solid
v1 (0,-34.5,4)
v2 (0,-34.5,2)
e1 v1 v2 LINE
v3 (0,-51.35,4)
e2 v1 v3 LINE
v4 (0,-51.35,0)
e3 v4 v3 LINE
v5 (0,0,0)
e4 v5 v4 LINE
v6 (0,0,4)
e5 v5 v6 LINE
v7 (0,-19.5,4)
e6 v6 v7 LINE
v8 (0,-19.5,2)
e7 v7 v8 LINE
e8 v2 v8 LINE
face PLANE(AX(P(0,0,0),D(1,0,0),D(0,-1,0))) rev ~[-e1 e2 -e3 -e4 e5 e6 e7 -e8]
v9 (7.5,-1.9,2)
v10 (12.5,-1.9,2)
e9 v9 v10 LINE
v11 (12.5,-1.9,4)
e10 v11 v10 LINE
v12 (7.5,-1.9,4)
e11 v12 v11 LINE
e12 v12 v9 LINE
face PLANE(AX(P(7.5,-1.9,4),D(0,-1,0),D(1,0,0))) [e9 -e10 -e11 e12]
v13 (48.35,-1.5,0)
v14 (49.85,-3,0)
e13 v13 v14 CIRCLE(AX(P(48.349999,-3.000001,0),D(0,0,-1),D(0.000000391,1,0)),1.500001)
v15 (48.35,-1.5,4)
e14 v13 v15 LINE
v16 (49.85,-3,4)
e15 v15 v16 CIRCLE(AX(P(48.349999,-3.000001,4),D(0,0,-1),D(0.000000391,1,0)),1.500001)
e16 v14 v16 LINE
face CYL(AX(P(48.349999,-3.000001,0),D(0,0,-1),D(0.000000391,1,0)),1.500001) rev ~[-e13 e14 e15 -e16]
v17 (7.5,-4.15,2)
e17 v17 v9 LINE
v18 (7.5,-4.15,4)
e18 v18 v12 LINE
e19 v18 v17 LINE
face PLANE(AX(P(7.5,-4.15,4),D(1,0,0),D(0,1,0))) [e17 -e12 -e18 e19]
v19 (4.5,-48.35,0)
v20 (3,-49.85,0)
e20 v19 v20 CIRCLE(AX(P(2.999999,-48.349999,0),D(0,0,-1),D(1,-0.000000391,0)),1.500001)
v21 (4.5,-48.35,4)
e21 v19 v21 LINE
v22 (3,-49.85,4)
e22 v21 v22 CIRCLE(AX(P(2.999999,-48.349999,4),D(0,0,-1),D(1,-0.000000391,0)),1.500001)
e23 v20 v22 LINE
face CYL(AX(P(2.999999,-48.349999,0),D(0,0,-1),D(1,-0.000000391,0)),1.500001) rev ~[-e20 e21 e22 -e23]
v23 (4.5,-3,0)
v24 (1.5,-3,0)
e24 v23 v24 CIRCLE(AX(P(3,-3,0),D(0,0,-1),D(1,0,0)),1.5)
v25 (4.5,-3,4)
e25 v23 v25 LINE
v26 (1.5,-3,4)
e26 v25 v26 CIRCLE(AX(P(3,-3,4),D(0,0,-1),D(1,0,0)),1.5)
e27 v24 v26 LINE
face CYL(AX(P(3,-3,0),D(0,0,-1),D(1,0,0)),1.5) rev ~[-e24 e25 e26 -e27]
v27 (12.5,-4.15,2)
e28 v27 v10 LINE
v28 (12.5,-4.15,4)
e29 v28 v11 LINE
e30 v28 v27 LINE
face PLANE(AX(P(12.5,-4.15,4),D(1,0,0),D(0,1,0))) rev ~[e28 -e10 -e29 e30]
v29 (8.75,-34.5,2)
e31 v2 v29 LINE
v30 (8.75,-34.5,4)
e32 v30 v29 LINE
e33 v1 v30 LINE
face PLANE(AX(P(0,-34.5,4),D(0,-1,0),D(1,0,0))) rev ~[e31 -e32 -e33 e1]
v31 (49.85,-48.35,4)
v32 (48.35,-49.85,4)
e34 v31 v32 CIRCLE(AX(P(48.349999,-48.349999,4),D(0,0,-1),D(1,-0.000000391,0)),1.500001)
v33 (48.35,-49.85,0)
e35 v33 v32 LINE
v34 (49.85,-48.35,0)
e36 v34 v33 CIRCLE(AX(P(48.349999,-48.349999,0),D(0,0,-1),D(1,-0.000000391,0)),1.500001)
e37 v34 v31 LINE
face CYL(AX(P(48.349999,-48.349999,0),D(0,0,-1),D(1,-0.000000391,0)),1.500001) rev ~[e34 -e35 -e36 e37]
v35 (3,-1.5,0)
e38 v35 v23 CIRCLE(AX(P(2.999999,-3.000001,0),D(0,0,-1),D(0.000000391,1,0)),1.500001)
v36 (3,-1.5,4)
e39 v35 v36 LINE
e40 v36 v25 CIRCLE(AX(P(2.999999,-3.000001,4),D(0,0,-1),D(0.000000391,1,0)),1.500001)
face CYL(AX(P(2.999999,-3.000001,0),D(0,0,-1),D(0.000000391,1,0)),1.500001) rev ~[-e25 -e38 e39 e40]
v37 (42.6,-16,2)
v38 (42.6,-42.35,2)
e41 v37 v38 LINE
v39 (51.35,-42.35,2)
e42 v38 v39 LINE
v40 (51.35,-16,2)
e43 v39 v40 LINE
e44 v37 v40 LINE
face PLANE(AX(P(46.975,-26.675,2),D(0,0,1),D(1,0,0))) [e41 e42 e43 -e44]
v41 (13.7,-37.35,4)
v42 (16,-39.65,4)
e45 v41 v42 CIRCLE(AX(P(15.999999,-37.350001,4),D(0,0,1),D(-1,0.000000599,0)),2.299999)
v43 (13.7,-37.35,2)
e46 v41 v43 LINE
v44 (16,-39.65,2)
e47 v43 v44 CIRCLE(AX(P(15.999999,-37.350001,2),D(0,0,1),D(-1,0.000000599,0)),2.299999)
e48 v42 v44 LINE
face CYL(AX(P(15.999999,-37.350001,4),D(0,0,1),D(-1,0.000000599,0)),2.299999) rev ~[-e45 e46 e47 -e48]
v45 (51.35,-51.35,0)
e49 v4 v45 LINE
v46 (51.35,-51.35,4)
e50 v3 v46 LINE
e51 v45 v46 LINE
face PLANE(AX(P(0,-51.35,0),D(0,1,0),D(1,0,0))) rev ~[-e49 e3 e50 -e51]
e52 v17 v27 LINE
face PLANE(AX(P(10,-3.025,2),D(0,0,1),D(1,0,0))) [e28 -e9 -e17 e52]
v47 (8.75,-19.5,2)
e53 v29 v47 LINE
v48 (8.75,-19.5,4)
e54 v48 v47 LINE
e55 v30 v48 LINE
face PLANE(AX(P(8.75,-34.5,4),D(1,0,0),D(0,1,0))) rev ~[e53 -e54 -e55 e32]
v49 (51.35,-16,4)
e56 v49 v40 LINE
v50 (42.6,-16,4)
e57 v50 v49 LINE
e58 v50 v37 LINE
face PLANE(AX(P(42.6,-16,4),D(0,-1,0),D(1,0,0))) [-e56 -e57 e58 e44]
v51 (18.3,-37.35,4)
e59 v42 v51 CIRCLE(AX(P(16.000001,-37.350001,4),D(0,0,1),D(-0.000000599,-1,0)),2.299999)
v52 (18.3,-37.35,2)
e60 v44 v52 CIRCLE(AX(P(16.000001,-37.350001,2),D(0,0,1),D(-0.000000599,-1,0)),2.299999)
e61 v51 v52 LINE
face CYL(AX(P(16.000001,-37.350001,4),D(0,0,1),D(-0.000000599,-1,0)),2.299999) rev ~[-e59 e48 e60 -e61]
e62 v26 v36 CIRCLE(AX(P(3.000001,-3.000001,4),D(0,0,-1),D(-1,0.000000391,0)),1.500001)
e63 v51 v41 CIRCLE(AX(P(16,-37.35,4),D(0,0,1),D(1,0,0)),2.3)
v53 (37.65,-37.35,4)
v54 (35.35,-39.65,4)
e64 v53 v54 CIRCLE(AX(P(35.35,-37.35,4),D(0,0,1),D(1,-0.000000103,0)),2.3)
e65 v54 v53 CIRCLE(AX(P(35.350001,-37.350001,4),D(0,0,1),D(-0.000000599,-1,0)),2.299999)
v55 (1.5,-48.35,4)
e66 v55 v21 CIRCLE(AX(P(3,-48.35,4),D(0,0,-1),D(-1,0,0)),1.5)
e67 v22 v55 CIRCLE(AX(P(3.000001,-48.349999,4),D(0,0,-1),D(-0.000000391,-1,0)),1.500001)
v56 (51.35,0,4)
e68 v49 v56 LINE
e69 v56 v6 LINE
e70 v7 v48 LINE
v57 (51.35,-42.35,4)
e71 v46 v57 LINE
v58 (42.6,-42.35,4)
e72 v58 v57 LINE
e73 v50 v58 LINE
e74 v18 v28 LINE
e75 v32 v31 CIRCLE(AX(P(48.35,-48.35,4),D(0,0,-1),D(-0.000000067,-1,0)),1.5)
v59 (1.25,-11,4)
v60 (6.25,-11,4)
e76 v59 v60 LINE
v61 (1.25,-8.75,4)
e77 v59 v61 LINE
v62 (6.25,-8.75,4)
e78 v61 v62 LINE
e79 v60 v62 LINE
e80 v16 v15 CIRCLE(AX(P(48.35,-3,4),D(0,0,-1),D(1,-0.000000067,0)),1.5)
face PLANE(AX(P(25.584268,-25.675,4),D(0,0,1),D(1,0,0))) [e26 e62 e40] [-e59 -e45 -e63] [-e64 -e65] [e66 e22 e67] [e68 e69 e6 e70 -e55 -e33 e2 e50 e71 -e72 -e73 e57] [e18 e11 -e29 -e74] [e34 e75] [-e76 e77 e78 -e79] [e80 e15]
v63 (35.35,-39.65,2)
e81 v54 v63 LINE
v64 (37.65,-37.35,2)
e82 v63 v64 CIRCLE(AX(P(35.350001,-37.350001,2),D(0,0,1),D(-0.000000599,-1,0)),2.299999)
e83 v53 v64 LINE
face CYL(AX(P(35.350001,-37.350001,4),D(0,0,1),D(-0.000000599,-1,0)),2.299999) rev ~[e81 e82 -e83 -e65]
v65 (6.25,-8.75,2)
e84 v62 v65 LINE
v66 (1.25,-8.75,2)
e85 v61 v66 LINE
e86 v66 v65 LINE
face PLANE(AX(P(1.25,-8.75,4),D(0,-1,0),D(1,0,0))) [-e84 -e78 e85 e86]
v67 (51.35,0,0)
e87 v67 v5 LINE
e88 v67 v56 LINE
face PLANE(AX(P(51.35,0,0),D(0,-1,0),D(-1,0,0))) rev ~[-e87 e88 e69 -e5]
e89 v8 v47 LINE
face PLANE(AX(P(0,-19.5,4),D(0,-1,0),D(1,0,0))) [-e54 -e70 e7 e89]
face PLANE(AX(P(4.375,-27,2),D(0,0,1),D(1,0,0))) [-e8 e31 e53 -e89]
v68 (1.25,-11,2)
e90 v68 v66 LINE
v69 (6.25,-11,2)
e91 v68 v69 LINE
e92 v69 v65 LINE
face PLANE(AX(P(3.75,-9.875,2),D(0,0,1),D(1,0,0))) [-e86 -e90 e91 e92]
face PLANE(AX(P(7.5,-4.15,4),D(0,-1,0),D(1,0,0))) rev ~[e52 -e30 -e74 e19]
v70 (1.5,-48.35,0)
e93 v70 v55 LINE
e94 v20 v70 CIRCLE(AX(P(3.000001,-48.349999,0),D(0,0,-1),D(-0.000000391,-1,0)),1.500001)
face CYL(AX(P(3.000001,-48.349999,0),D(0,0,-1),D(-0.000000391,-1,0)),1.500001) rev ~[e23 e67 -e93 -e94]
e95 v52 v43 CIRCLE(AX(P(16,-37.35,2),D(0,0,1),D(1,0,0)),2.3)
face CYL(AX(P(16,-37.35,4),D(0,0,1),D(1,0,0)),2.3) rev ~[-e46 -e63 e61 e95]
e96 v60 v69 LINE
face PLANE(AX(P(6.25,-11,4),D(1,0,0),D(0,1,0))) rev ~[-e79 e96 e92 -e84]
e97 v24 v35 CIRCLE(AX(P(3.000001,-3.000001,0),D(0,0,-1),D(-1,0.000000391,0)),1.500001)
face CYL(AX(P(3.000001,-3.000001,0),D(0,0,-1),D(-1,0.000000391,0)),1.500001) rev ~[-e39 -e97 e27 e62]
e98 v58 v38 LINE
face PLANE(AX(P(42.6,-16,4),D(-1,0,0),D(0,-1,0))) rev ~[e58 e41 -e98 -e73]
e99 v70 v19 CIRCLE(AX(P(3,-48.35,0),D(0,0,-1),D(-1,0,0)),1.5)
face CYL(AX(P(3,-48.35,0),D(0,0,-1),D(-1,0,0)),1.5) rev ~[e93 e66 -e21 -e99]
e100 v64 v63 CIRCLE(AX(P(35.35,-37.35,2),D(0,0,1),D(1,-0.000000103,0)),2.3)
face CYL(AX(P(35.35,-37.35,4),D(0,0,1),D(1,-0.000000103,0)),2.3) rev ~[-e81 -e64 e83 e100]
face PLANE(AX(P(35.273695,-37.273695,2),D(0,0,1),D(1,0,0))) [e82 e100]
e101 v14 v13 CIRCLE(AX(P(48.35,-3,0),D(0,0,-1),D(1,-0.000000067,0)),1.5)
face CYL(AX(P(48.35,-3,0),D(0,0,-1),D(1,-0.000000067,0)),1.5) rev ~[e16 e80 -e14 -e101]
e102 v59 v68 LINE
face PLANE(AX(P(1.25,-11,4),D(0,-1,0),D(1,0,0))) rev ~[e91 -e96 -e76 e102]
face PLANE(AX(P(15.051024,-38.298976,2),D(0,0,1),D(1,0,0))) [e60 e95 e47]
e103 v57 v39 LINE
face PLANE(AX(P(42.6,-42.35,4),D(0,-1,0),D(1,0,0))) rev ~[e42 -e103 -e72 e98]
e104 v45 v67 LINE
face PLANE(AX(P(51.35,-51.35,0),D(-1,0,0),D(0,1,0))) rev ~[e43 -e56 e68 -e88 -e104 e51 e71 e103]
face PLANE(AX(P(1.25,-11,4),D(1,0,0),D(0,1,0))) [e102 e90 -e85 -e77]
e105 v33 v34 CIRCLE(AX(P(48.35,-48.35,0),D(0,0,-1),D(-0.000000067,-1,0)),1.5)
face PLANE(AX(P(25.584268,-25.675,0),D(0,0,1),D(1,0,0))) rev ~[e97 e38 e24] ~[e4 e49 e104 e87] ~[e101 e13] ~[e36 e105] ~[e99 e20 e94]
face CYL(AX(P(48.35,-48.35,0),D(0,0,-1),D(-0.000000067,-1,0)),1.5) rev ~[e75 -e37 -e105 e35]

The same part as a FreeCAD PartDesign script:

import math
import FreeCAD as App
import Part
import Sketcher

V = App.Vector

doc = App.newDocument("Part")
body = doc.addObject("PartDesign::Body", "Body")

# Sketch on XY plane
sketch1 = doc.addObject("Sketcher::SketchObject", "Sketch")
body.addObject(sketch1)
sketch1.AttachmentSupport = (doc.XY_Plane, [""])
sketch1.MapMode = "FlatFace"
sketch1.addGeometry([
    Part.LineSegment(V(0, -51.4, 0), V(51.4, -51.4, 0)),  # 0
    Part.LineSegment(V(51.4, -51.4, 0), V(51.4, 0, 0)),  # 1
    Part.LineSegment(V(51.4, 0, 0), V(0, 0, 0)),  # 2
    Part.LineSegment(V(0, 0, 0), V(0, -51.4, 0)),  # 3
    Part.ArcOfCircle(Part.Circle(V(3, -3, 0), V(0, 0, 1), 1.5), math.radians(0), math.radians(90)),  # 4
    Part.ArcOfCircle(Part.Circle(V(3, -3, 0), V(0, 0, 1), 1.5), math.radians(180), math.radians(360)),  # 5
    Part.ArcOfCircle(Part.Circle(V(3, -3, 0), V(0, 0, 1), 1.5), math.radians(90), math.radians(180)),  # 6
    Part.ArcOfCircle(Part.Circle(V(48.4, -3, 0), V(0, 0, 1), 1.5), math.radians(90), math.radians(360)),  # 7
    Part.ArcOfCircle(Part.Circle(V(48.3, -3, 0), V(0, 0, 1), 1.5), math.radians(0), math.radians(90)),  # 8
    Part.ArcOfCircle(Part.Circle(V(48.4, -48.4, 0), V(0, 0, 1), 1.5), math.radians(0), math.radians(270)),  # 9
    Part.ArcOfCircle(Part.Circle(V(48.3, -48.3, 0), V(0, 0, 1), 1.5), math.radians(-90), math.radians(0)),  # 10
    Part.ArcOfCircle(Part.Circle(V(3, -48.4, 0), V(0, 0, 1), 1.5), math.radians(0), math.radians(180)),  # 11
    Part.ArcOfCircle(Part.Circle(V(3, -48.3, 0), V(0, 0, 1), 1.5), math.radians(-90), math.radians(0)),  # 12
    Part.ArcOfCircle(Part.Circle(V(3, -48.3, 0), V(0, 0, 1), 1.5), math.radians(-180), math.radians(-90)),  # 13
], False)
sketch1.addConstraint([
    Sketcher.Constraint("Coincident", 0, 2, 1, 1),
    Sketcher.Constraint("Coincident", 1, 2, 2, 1),
    Sketcher.Constraint("Coincident", 2, 2, 3, 1),
    Sketcher.Constraint("Coincident", 3, 2, 0, 1),
    Sketcher.Constraint("Tangent", 4, 1, 5, 2),
    Sketcher.Constraint("Tangent", 5, 1, 6, 2),
    Sketcher.Constraint("Tangent", 6, 1, 4, 2),
    Sketcher.Constraint("Tangent", 7, 1, 8, 2),
    Sketcher.Constraint("Coincident", 8, 1, 7, 2),
    Sketcher.Constraint("Tangent", 9, 1, 10, 2),
    Sketcher.Constraint("Coincident", 10, 1, 9, 2),
    Sketcher.Constraint("Tangent", 11, 1, 12, 2),
    Sketcher.Constraint("Tangent", 12, 1, 13, 2),
    Sketcher.Constraint("Tangent", 13, 1, 11, 2),
    Sketcher.Constraint("Horizontal", 0),
    Sketcher.Constraint("Vertical", 1),
    Sketcher.Constraint("Horizontal", 2),
    Sketcher.Constraint("Vertical", 3),
    Sketcher.Constraint("Coincident", 2, 2, -1, 1),
    Sketcher.Constraint("Equal", 6, 7),
    Sketcher.Constraint("Equal", 8, 9),
    Sketcher.Constraint("Equal", 10, 11),
    Sketcher.Constraint("Horizontal", 6, 3, 7, 3),
    Sketcher.Constraint("Horizontal", 10, 3, 11, 3),
    Sketcher.Constraint("Horizontal", 8, 3, 4, 1),
    Sketcher.Constraint("Horizontal", 4, 1, 5, 1),
    Sketcher.Constraint("Horizontal", 5, 1, 8, 1),
    Sketcher.Constraint("Horizontal", 13, 3, 9, 1),
    Sketcher.Constraint("Horizontal", 9, 1, 11, 1),
    Sketcher.Constraint("Horizontal", 11, 1, 13, 1),
    Sketcher.Constraint("Vertical", 8, 3, 9, 3),
    Sketcher.Constraint("Vertical", 6, 3, 11, 3),
    Sketcher.Constraint("Vertical", 13, 3, 6, 1),
    Sketcher.Constraint("Vertical", 10, 3, 7, 1),
    Sketcher.Constraint("Vertical", 7, 1, 10, 1),
    Sketcher.Constraint("Vertical", 6, 1, 12, 1),
    Sketcher.Constraint("Equal", 2, 1),
    Sketcher.Constraint("Radius", 4, 1.500001),
    Sketcher.Constraint("DistanceX", -1, 1, 4, 3, 2.999999),
    Sketcher.Constraint("DistanceY", 4, 3, -1, 1, 3.000001),
    Sketcher.Constraint("DistanceX", 9, 3, 0, 2, 3.0),
    Sketcher.Constraint("DistanceY", 0, 2, 9, 3, 3.0),
    Sketcher.Constraint("DistanceX", 0, 1, 0, 2, 51.35),
])
pad1 = doc.addObject("PartDesign::Pad", "Pad")
body.addObject(pad1)
pad1.Profile = sketch1
pad1.Length = 4

# Sketch on XY plane
sketch2 = doc.addObject("Sketcher::SketchObject", "Sketch001")
body.addObject(sketch2)
sketch2.AttachmentSupport = (doc.XY_Plane, [""])
sketch2.MapMode = "FlatFace"
sketch2.AttachmentOffset = App.Placement(V(0, 0, 4), App.Rotation())
sketch2.addGeometry([
    Part.LineSegment(V(1.2, -8.8, 0), V(1.2, -11, 0)),  # 0
    Part.LineSegment(V(1.2, -11, 0), V(6.2, -11, 0)),  # 1
    Part.LineSegment(V(6.2, -11, 0), V(6.2, -8.8, 0)),  # 2
    Part.LineSegment(V(6.2, -8.8, 0), V(1.2, -8.8, 0)),  # 3
    Part.LineSegment(V(0, -19.5, 0), V(0, -34.5, 0)),  # 4
    Part.LineSegment(V(0, -34.5, 0), V(8.8, -34.5, 0)),  # 5
    Part.LineSegment(V(8.8, -34.5, 0), V(8.8, -19.5, 0)),  # 6
    Part.LineSegment(V(8.8, -19.5, 0), V(0, -19.5, 0)),  # 7
    Part.ArcOfCircle(Part.Circle(V(16, -37.4, 0), V(0, 0, 1), 2.3), math.radians(180), math.radians(270)),  # 8
    Part.ArcOfCircle(Part.Circle(V(16, -37.4, 0), V(0, 0, 1), 2.3), math.radians(-90), math.radians(0)),  # 9
    Part.ArcOfCircle(Part.Circle(V(16, -37.4, 0), V(0, 0, 1), 2.3), math.radians(0), math.radians(180)),  # 10
    Part.ArcOfCircle(Part.Circle(V(35.3, -37.3, 0), V(0, 0, 1), 2.3), math.radians(0), math.radians(270)),  # 11
    Part.ArcOfCircle(Part.Circle(V(35.4, -37.4, 0), V(0, 0, 1), 2.3), math.radians(-90), math.radians(0)),  # 12
    Part.LineSegment(V(42.6, -16, 0), V(42.6, -42.4, 0)),  # 13
    Part.LineSegment(V(42.6, -42.4, 0), V(51.4, -42.4, 0)),  # 14
    Part.LineSegment(V(51.4, -42.4, 0), V(51.4, -16, 0)),  # 15
    Part.LineSegment(V(51.4, -16, 0), V(42.6, -16, 0)),  # 16
    Part.LineSegment(V(7.5, -1.9, 0), V(7.5, -4.2, 0)),  # 17
    Part.LineSegment(V(7.5, -4.2, 0), V(12.5, -4.2, 0)),  # 18
    Part.LineSegment(V(12.5, -4.2, 0), V(12.5, -1.9, 0)),  # 19
    Part.LineSegment(V(12.5, -1.9, 0), V(7.5, -1.9, 0)),  # 20
], False)
sketch2.addConstraint([
    Sketcher.Constraint("Coincident", 0, 2, 1, 1),
    Sketcher.Constraint("Coincident", 1, 2, 2, 1),
    Sketcher.Constraint("Coincident", 2, 2, 3, 1),
    Sketcher.Constraint("Coincident", 3, 2, 0, 1),
    Sketcher.Constraint("Coincident", 4, 2, 5, 1),
    Sketcher.Constraint("Coincident", 5, 2, 6, 1),
    Sketcher.Constraint("Coincident", 6, 2, 7, 1),
    Sketcher.Constraint("Coincident", 7, 2, 4, 1),
    Sketcher.Constraint("Tangent", 8, 2, 9, 1),
    Sketcher.Constraint("Tangent", 9, 2, 10, 1),
    Sketcher.Constraint("Tangent", 10, 2, 8, 1),
    Sketcher.Constraint("Tangent", 11, 1, 12, 2),
    Sketcher.Constraint("Coincident", 12, 1, 11, 2),
    Sketcher.Constraint("Coincident", 13, 2, 14, 1),
    Sketcher.Constraint("Coincident", 14, 2, 15, 1),
    Sketcher.Constraint("Coincident", 15, 2, 16, 1),
    Sketcher.Constraint("Coincident", 16, 2, 13, 1),
    Sketcher.Constraint("Coincident", 17, 2, 18, 1),
    Sketcher.Constraint("Coincident", 18, 2, 19, 1),
    Sketcher.Constraint("Coincident", 19, 2, 20, 1),
    Sketcher.Constraint("Coincident", 20, 2, 17, 1),
    Sketcher.Constraint("Vertical", 0),
    Sketcher.Constraint("Horizontal", 1),
    Sketcher.Constraint("Vertical", 2),
    Sketcher.Constraint("Horizontal", 3),
    Sketcher.Constraint("Vertical", 4),
    Sketcher.Constraint("Horizontal", 5),
    Sketcher.Constraint("Vertical", 6),
    Sketcher.Constraint("Horizontal", 7),
    Sketcher.Constraint("Vertical", 13),
    Sketcher.Constraint("Horizontal", 14),
    Sketcher.Constraint("Vertical", 15),
    Sketcher.Constraint("Horizontal", 16),
    Sketcher.Constraint("Vertical", 17),
    Sketcher.Constraint("Horizontal", 18),
    Sketcher.Constraint("Vertical", 19),
    Sketcher.Constraint("Horizontal", 20),
    Sketcher.Constraint("Equal", 10, 11),
    Sketcher.Constraint("PointOnObject", 4, 2, -2),
    Sketcher.Constraint("Horizontal", 10, 3, 11, 3),
    Sketcher.Constraint("Horizontal", 12, 3, 9, 2),
    Sketcher.Constraint("Horizontal", 9, 2, 10, 2),
    Sketcher.Constraint("Horizontal", 10, 2, 11, 1),
    Sketcher.Constraint("Vertical", 10, 3, 8, 2),
    Sketcher.Constraint("Vertical", 11, 3, 12, 1),
    Sketcher.Constraint("Equal", 7, 14),
    Sketcher.Constraint("Equal", 3, 18),
    Sketcher.Constraint("Equal", 2, 17),
    Sketcher.Constraint("Radius", 8, 2.299999),
    Sketcher.Constraint("DistanceX", 1, 1, 1, 2, 5.0),
    Sketcher.Constraint("DistanceY", 4, 2, 4, 1, 15.0),
    Sketcher.Constraint("DistanceX", -1, 1, 8, 3, 15.999999),
    Sketcher.Constraint("DistanceY", 0, 2, -1, 1, 11.0),
    Sketcher.Constraint("DistanceY", 15, 2, -1, 1, 16.0),
    Sketcher.Constraint("DistanceY", 13, 2, 11, 1, 5.0),
    Sketcher.Constraint("DistanceX", 12, 1, 14, 2, 16.0),
    Sketcher.Constraint("DistanceX", 5, 1, 5, 2, 8.75),
    Sketcher.Constraint("DistanceY", 0, 2, 0, 1, 2.25),
    Sketcher.Constraint("DistanceY", 13, 2, 13, 1, 26.35),
    Sketcher.Constraint("DistanceY", 4, 2, -1, 1, 34.5),
    Sketcher.Constraint("DistanceX", -1, 1, 13, 2, 42.6),
    Sketcher.Constraint("DistanceX", -1, 1, 17, 2, 7.5),
    Sketcher.Constraint("DistanceY", 19, 2, -1, 1, 1.9),
    Sketcher.Constraint("DistanceX", 0, 2, 11, 3, 34.1),
])
pocket1 = doc.addObject("PartDesign::Pocket", "Pocket")
body.addObject(pocket1)
pocket1.Profile = sketch2
pocket1.Length = 2

doc.recompute()
